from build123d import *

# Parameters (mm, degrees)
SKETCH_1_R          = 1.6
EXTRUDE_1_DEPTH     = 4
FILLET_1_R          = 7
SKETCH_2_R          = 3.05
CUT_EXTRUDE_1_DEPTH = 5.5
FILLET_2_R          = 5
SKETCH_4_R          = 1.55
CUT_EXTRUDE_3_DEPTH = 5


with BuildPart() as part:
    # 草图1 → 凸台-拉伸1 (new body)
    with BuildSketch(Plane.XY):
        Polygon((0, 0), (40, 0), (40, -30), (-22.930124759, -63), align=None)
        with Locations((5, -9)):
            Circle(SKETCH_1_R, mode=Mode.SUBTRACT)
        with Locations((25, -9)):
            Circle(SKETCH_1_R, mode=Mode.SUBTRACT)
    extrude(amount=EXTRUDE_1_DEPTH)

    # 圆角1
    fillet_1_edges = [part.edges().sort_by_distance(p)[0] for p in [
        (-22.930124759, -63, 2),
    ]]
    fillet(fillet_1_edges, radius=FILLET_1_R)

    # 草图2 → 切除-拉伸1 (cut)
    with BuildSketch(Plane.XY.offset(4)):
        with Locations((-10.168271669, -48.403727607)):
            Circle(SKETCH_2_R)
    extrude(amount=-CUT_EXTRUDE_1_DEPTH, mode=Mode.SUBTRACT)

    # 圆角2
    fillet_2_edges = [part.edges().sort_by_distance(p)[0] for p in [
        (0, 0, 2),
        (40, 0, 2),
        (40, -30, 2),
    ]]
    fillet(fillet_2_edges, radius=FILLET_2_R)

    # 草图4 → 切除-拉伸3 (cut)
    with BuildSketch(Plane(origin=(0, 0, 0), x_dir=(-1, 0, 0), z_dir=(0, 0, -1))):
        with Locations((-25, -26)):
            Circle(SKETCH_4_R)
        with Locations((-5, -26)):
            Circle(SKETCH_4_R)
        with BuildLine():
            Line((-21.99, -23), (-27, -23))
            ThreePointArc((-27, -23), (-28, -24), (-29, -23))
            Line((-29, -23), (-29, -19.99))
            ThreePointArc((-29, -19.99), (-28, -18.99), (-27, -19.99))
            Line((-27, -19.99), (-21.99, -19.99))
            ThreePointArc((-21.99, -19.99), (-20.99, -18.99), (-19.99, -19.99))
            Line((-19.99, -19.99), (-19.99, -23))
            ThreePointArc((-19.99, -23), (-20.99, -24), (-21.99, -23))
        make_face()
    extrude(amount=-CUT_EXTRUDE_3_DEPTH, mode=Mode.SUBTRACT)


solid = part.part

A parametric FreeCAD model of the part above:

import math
import FreeCAD as App
import Part
import Sketcher
Q = App.Units.Quantity


def edges_at(feature, points):
    """Names of the edges that pass closest to the given points."""
    edges = feature.Shape.Edges
    near = lambda p: min(range(len(edges)), key=lambda i: edges[i].distToShape(Part.Vertex(*p))[0])
    return sorted({f"Edge{near(p) + 1}" for p in points})

doc = App.newDocument("Part")
body = doc.addObject("PartDesign::Body", "Body")

# Sketch on XY plane
sketch1 = body.newObject("Sketcher::SketchObject", "Sketch")
sketch1.AttachmentSupport = (doc.getObject("XY_Plane"), [""])
sketch1.MapMode = "FlatFace"
sketch1.addGeometry([
    Part.LineSegment(App.Vector(40, 0, 0), App.Vector(0, 0, 0)),  # 0
    Part.LineSegment(App.Vector(0, 0, 0), App.Vector(-22.930125, -63, 0)),  # 1
    Part.LineSegment(App.Vector(-22.930125, -63, 0), App.Vector(40, -30, 0)),  # 2
    Part.LineSegment(App.Vector(40, -30, 0), App.Vector(40, 0, 0)),  # 3
    Part.Circle(App.Vector(25, -9, 0), App.Vector(0, 0, 1), 1.6),  # 4
    Part.Circle(App.Vector(5, -9, 0), App.Vector(0, 0, 1), 1.6),  # 5
], False)
sketch1.addConstraint([
    Sketcher.Constraint("Coincident", 0, 2, 1, 1),
    Sketcher.Constraint("Coincident", 1, 2, 2, 1),
    Sketcher.Constraint("Coincident", 2, 2, 3, 1),
    Sketcher.Constraint("Coincident", 3, 2, 0, 1),
    Sketcher.Constraint("Horizontal", 0),
    Sketcher.Constraint("Vertical", 3),
    Sketcher.Constraint("Coincident", 0, 2, -1, 1),
    Sketcher.Constraint("Equal", 4, 5),
    Sketcher.Constraint("Horizontal", 4, 3, 5, 3),
    Sketcher.Constraint("Diameter", 4, Q("3.2 mm")),
    Sketcher.Constraint("DistanceX", 0, 2, 0, 1, Q("40 mm")),
    Sketcher.Constraint("DistanceY", 3, 1, 3, 2, Q("30 mm")),
    Sketcher.Constraint("Angle", 1, Q("-110 deg")),
    Sketcher.Constraint("DistanceX", -1, 1, 4, 3, Q("25 mm")),
    Sketcher.Constraint("DistanceY", 4, 3, -1, 1, Q("9 mm")),
    Sketcher.Constraint("DistanceX", -1, 1, 5, 3, Q("5 mm")),
    Sketcher.Constraint("DistanceY", 1, 2, -1, 1, Q("63 mm")),
])
pad1 = body.newObject("PartDesign::Pad", "Pad")
pad1.Profile = sketch1
pad1.Length = 4
doc.recompute()

fillet = body.newObject("PartDesign::Fillet", "Fillet")
fillet.Base = (pad1, edges_at(pad1, [(-22.93, -63, 2)]))
fillet.Radius = 7

# Sketch on XY plane
sketch2 = body.newObject("Sketcher::SketchObject", "Sketch001")
sketch2.AttachmentSupport = (doc.getObject("XY_Plane"), [""])
sketch2.MapMode = "FlatFace"
sketch2.AttachmentOffset = App.Placement(App.Vector(0, 0, 4), App.Rotation())
sketch2.addGeometry(Part.Circle(App.Vector(-10.168272, -48.403728, 0), App.Vector(0, 0, 1), 3.05), False)
sketch2.addConstraint([
    Sketcher.Constraint("Diameter", 0, Q("6.1 mm")),
    Sketcher.Constraint("DistanceX", 0, 3, -1, 1, Q("10.168272 mm")),
    Sketcher.Constraint("DistanceY", 0, 3, -1, 1, Q("48.403728 mm")),
])
pocket1 = body.newObject("PartDesign::Pocket", "Pocket")
pocket1.Profile = sketch2
pocket1.Length = 5.5
doc.recompute()

fillet2 = body.newObject("PartDesign::Fillet", "Fillet001")
fillet2.Base = (pocket1, edges_at(pocket1, [(0, 0, 2), (40, 0, 2), (40, -30, 2)]))
fillet2.Radius = 5

# Sketch on XY plane
sketch3 = body.newObject("Sketcher::SketchObject", "Sketch002")
sketch3.AttachmentSupport = (doc.getObject("XY_Plane"), [""])
sketch3.MapMode = "FlatFace"
sketch3.addGeometry([
    Part.Circle(App.Vector(25, -26, 0), App.Vector(0, 0, 1), 1.55),  # 0
    Part.Circle(App.Vector(5, -26, 0), App.Vector(0, 0, 1), 1.55),  # 1
    Part.LineSegment(App.Vector(27, -23, 0), App.Vector(21.99, -23, 0)),  # 2
    Part.ArcOfCircle(Part.Circle(App.Vector(20.99, -23, 0), App.Vector(0, 0, 1), 1), math.radians(180), math.radians(360)),  # 3
    Part.LineSegment(App.Vector(19.99, -23, 0), App.Vector(19.99, -19.99, 0)),  # 4
    Part.ArcOfCircle(Part.Circle(App.Vector(20.99, -19.99, 0), App.Vector(0, 0, 1), 1), math.radians(0), math.radians(180)),  # 5
    Part.LineSegment(App.Vector(21.99, -19.99, 0), App.Vector(27, -19.99, 0)),  # 6
    Part.ArcOfCircle(Part.Circle(App.Vector(28, -19.99, 0), App.Vector(0, 0, 1), 1), math.radians(0), math.radians(180)),  # 7
    Part.LineSegment(App.Vector(29, -19.99, 0), App.Vector(29, -23, 0)),  # 8
    Part.ArcOfCircle(Part.Circle(App.Vector(28, -23, 0), App.Vector(0, 0, 1), 1), math.radians(180), math.radians(360)),  # 9
], False)
sketch3.addConstraint([
    Sketcher.Constraint("Coincident", 2, 2, 3, 2),
    Sketcher.Constraint("Tangent", 3, 1, 4, 1),
    Sketcher.Constraint("Tangent", 4, 2, 5, 2),
    Sketcher.Constraint("Coincident", 5, 1, 6, 1),
    Sketcher.Constraint("Coincident", 6, 2, 7, 2),
    Sketcher.Constraint("Tangent", 7, 1, 8, 1),
    Sketcher.Constraint("Tangent", 8, 2, 9, 2),
    Sketcher.Constraint("Coincident", 9, 1, 2, 1),
    Sketcher.Constraint("Horizontal", 2),
    Sketcher.Constraint("Vertical", 4),
    Sketcher.Constraint("Horizontal", 6),
    Sketcher.Constraint("Vertical", 8),
    Sketcher.Constraint("Equal", 0, 1),
    Sketcher.Constraint("Equal", 3, 5),
    Sketcher.Constraint("Equal", 5, 7),
    Sketcher.Constraint("Equal", 7, 9),
    Sketcher.Constraint("Horizontal", 0, 3, 1, 3),
    Sketcher.Constraint("Horizontal", 5, 3, 7, 3),
    Sketcher.Constraint("Horizontal", 3, 3, 9, 3),
    Sketcher.Constraint("Horizontal", 9, 3, 2, 2),
    Sketcher.Constraint("Horizontal", 4, 2, 5, 1),
    Sketcher.Constraint("Radius", 3, Q("1 mm")),
    Sketcher.Constraint("Diameter", 0, Q("3.1 mm")),
    Sketcher.Constraint("DistanceX", -1, 1, 0, 3, Q("25 mm")),
    Sketcher.Constraint("DistanceY", 0, 3, -1, 1, Q("26 mm")),
    Sketcher.Constraint("DistanceX", -1, 1, 1, 3, Q("5 mm")),
    Sketcher.Constraint("DistanceY", 3, 3, -1, 1, Q("23 mm")),
    Sketcher.Constraint("DistanceX", -1, 1, 7, 3, Q("28 mm")),
    Sketcher.Constraint("DistanceX", 2, 2, 2, 1, Q("5.01 mm")),
    Sketcher.Constraint("DistanceY", 4, 1, 4, 2, Q("3.01 mm")),
])
pocket2 = body.newObject("PartDesign::Pocket", "Pocket001")
pocket2.Profile = sketch3
pocket2.Length = 5
pocket2.Reversed = True

doc.recompute()
